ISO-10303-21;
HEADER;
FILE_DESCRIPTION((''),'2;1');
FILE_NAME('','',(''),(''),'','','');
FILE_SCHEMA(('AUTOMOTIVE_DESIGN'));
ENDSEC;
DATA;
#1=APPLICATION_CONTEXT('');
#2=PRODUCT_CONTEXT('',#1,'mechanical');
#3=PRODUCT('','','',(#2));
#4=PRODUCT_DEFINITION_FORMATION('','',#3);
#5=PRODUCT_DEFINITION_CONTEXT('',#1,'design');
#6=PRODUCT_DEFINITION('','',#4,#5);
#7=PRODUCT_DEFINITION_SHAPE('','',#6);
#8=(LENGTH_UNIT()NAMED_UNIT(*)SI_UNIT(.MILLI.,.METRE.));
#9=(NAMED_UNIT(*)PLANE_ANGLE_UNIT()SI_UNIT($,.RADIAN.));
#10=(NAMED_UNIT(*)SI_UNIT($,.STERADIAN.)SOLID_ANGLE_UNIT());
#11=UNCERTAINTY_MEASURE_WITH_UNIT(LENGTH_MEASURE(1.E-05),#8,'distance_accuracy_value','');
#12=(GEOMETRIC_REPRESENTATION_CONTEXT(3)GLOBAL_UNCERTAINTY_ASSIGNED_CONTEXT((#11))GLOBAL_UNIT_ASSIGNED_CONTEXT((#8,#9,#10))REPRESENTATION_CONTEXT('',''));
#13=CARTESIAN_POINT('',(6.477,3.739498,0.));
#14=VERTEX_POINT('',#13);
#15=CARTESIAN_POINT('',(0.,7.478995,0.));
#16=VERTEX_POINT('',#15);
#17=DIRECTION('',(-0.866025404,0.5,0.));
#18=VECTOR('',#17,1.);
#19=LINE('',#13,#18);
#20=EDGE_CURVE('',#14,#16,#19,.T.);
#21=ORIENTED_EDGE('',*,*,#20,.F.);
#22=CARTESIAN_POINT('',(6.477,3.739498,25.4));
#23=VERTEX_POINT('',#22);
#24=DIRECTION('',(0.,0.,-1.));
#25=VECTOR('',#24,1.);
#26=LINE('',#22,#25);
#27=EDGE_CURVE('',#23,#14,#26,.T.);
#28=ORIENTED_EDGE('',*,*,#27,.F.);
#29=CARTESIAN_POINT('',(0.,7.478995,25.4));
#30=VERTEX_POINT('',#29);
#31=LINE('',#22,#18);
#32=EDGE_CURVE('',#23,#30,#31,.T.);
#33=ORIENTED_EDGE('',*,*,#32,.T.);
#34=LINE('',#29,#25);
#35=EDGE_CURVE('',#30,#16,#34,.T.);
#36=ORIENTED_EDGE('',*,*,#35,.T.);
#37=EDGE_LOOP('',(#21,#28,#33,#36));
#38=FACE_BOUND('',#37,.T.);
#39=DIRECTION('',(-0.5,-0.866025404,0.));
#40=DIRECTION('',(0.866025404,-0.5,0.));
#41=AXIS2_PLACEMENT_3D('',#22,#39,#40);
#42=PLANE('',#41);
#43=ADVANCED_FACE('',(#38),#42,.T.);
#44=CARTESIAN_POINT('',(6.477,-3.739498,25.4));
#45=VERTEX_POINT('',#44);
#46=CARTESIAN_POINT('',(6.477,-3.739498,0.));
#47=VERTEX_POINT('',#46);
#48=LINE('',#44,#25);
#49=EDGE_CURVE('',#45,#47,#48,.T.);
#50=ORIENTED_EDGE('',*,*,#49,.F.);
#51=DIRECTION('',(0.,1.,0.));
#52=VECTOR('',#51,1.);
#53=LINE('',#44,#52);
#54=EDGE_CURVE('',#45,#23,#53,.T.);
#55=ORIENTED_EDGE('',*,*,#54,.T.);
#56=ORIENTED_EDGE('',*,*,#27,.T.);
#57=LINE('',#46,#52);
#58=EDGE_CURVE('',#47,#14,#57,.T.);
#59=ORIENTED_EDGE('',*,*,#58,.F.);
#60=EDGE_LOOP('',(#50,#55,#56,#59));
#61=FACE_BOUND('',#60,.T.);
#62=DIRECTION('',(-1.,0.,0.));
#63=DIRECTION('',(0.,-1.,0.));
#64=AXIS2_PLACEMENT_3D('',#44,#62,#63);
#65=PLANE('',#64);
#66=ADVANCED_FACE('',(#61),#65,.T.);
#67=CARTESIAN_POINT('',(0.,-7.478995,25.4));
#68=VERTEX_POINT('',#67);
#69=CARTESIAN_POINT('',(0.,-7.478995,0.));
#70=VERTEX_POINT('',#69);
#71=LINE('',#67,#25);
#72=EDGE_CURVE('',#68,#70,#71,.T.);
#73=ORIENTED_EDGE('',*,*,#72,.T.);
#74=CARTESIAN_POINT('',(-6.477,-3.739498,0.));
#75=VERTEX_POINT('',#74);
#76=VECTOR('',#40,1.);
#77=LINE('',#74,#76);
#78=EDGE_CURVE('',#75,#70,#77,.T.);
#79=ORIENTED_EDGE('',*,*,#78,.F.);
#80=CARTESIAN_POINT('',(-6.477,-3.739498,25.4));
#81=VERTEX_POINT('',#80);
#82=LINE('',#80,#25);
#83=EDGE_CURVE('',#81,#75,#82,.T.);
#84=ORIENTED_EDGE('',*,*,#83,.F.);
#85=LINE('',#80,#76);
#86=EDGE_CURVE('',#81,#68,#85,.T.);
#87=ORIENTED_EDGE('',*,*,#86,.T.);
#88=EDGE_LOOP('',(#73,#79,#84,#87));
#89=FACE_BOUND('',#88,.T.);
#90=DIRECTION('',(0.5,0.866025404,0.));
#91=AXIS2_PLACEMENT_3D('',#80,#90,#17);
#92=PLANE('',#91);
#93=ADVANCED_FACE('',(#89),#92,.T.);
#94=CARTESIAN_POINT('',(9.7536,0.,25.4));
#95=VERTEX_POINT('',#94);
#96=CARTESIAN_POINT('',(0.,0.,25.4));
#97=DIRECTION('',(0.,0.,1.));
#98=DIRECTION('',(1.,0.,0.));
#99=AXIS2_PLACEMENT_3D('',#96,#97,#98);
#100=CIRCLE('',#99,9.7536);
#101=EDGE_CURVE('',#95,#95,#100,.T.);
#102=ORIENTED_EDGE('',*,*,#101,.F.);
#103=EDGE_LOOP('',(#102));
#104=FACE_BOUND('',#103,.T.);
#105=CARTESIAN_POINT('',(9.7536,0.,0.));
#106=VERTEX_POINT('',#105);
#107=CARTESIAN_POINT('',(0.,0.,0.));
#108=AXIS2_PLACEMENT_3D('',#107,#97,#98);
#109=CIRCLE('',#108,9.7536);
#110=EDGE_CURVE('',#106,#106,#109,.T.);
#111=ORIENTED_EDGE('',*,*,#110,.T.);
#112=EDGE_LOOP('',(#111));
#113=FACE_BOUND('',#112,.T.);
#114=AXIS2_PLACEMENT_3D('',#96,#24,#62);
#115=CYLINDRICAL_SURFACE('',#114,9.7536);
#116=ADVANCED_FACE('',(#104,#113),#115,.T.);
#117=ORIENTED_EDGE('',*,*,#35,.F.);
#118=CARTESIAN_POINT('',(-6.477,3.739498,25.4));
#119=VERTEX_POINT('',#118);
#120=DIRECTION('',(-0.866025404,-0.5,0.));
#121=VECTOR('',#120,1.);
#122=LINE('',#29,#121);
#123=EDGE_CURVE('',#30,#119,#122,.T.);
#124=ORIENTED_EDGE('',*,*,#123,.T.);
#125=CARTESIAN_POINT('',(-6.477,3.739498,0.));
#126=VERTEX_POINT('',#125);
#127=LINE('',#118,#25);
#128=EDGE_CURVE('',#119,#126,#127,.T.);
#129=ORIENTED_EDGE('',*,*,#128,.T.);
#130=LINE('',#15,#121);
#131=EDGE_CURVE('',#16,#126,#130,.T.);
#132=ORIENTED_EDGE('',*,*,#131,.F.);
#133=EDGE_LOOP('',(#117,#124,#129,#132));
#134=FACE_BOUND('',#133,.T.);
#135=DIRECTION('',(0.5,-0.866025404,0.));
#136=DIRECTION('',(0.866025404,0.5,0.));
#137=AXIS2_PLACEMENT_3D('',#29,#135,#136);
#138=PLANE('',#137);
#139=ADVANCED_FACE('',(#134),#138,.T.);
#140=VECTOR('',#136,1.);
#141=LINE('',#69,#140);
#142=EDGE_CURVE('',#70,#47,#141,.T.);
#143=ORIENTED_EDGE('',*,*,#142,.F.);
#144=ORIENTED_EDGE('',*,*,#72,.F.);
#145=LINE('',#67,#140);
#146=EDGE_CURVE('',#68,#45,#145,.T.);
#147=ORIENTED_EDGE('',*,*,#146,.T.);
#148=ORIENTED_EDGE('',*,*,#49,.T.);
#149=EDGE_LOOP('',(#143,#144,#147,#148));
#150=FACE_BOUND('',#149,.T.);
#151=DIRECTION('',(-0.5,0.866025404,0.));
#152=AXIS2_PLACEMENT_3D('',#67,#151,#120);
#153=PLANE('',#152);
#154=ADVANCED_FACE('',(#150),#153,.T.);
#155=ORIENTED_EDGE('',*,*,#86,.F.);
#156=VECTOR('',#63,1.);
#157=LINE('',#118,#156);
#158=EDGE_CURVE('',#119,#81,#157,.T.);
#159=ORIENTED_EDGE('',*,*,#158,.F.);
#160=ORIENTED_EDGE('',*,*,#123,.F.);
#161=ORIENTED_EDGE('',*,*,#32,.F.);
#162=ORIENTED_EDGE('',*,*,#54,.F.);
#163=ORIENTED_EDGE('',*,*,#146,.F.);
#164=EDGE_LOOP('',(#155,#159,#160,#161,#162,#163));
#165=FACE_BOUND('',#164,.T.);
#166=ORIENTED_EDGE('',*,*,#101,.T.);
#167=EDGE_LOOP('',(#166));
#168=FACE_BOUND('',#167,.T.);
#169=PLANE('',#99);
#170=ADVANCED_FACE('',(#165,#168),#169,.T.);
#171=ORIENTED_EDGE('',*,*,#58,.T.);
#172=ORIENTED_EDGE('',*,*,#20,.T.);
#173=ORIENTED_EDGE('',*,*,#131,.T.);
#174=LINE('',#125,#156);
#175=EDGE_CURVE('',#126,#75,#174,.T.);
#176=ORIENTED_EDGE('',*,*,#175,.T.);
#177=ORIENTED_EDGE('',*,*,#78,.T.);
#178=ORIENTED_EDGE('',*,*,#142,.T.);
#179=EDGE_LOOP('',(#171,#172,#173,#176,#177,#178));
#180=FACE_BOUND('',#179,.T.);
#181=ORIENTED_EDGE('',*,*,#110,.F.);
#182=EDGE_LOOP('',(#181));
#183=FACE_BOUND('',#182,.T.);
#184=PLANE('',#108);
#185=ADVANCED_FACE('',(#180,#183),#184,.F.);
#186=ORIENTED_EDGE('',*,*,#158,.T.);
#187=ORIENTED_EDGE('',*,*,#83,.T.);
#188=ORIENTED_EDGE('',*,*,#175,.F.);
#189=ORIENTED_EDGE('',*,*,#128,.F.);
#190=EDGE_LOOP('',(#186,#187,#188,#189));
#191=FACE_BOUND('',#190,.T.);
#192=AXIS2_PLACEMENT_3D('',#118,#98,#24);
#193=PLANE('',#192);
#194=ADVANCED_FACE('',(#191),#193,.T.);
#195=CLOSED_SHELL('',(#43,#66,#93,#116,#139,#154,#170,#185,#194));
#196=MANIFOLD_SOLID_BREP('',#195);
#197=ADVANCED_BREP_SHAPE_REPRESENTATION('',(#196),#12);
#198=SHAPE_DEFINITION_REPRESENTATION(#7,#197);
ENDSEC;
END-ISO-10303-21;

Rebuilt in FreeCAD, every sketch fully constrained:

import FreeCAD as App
import Part
import Sketcher
from FreeCAD import Vector
Q = App.Units.Quantity


def add_polygon(sketch, points):
    """Adds a closed chain of lines whose ends are joined by coincident constraints."""
    first, n = sketch.GeometryCount, len(points)
    for a, b in zip(points, points[1:] + points[:1]):
        sketch.addGeometry(Part.LineSegment(App.Vector(*a, 0), App.Vector(*b, 0)), False)
    for i in range(n):
        sketch.addConstraint(Sketcher.Constraint("Coincident", first + i, 2, first + (i + 1) % n, 1))

doc = App.newDocument("Part")
params = doc.addObject("Spreadsheet::Sheet", "Params")
for row, (alias, value) in enumerate([
    ("sketch1_diameter", "0.768 in"),
    ("pad1_length", "1 in"),
], start=1):
    params.set(f"A{row}", alias)
    params.set(f"B{row}", "=" + value)
    params.setAlias(f"B{row}", alias)

body = doc.addObject("PartDesign::Body", "Body")

sketch1 = body.newObject("Sketcher::SketchObject", "Sketch")
sketch1.AttachmentSupport = (doc.getObject("XY_Plane"), [""])
sketch1.MapMode = "FlatFace"
sketch1.addGeometry(Part.Circle(Vector(0, 0, 0), Vector(0, 0, 1), 10), False)
add_polygon(sketch1, [(-6, 4), (0, 7), (6, 4), (6, -4), (0, -7), (-6, -4)])
sketch1.addConstraint(Sketcher.Constraint("Vertical", 3))
sketch1.addConstraint(Sketcher.Constraint("Vertical", 6))
sketch1.addConstraint(Sketcher.Constraint("Coincident", 0, 3, -1, 1))
sketch1.addConstraint(Sketcher.Constraint("Symmetric", 1, 2, 4, 2, -1, 1))
sketch1.addConstraint(Sketcher.Constraint("Symmetric", 2, 2, 5, 2, -1, 1))
sketch1.addConstraint(Sketcher.Constraint("PointOnObject", 1, 2, -2))
sketch1.addConstraint(Sketcher.Constraint("Parallel", 1, 4))
sketch1.addConstraint(Sketcher.Constraint("Horizontal", 3, 2, 5, 2))
sketch1.addConstraint(Sketcher.Constraint("Diameter", 0, Q("0.768 in")))
sketch1.addConstraint(Sketcher.Constraint("Angle", 1, Q("30 deg")))
sketch1.addConstraint(Sketcher.Constraint("DistanceX", 5, 2, 3, 2, Q("0.51 in")))
sketch1.addConstraint(Sketcher.Constraint("DistanceY", 3, 2, 3, 1, Q("7.478995 mm")))
sketch1.setExpression("Constraints[14]", "Params.sketch1_diameter")
pad1 = body.newObject("PartDesign::Pad", "Pad")
pad1.Profile = sketch1
pad1.setExpression("Length", "Params.pad1_length")

doc.recompute()
